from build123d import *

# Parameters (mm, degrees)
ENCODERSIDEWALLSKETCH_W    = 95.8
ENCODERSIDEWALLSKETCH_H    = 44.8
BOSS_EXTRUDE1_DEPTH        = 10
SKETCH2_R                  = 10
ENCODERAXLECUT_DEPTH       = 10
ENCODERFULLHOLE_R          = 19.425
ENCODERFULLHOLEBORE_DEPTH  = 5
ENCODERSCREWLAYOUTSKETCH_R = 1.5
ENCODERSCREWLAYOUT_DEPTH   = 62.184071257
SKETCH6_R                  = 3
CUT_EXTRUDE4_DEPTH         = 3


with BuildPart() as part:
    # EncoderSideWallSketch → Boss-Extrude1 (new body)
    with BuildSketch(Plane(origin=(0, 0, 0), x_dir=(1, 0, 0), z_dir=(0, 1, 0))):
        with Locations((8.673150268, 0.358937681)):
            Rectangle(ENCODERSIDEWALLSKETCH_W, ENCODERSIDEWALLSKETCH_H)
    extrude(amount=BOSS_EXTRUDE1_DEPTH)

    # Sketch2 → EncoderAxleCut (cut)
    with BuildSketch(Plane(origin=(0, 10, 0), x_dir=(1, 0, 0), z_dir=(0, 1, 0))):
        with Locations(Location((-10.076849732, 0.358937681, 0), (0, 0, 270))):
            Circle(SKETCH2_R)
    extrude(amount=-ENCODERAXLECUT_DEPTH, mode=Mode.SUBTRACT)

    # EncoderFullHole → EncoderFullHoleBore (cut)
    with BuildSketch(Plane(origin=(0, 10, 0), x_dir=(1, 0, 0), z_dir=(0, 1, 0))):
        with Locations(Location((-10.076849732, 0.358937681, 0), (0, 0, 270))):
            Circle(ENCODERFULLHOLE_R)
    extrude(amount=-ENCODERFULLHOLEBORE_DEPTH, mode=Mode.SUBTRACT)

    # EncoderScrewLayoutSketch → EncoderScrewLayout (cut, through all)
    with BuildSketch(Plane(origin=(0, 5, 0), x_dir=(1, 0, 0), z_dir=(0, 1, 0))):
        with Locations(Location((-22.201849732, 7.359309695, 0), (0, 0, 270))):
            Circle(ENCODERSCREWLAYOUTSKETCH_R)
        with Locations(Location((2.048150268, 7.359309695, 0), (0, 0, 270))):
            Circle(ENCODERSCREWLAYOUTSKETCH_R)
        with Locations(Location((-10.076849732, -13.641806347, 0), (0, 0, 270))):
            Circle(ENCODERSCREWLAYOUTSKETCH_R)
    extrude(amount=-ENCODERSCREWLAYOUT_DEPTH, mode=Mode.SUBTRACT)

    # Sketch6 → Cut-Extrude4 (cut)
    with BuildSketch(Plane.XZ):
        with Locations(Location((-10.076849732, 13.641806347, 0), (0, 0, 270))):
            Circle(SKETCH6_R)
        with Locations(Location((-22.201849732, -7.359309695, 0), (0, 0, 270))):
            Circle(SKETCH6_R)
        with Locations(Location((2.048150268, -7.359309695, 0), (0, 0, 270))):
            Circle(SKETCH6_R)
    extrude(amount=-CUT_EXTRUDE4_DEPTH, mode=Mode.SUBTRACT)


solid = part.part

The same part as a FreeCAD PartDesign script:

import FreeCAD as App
import Part
import Sketcher
from FreeCAD import Vector
Q = App.Units.Quantity

doc = App.newDocument("Part")
body = doc.addObject("PartDesign::Body", "Body")

# Sketch on XZ plane
sketch1 = body.newObject("Sketcher::SketchObject", "Sketch")
sketch1.AttachmentSupport = (doc.getObject("XZ_Plane"), [""])
sketch1.MapMode = "FlatFace"
sketch1.addGeometry(Part.LineSegment(Vector(-39, -23, 0), Vector(-39, 22, 0)), False)
sketch1.addGeometry(Part.LineSegment(Vector(-39, 22, 0), Vector(57, 22, 0)), False)
sketch1.addGeometry(Part.LineSegment(Vector(57, 22, 0), Vector(57, -23, 0)), False)
sketch1.addGeometry(Part.LineSegment(Vector(57, -23, 0), Vector(-39, -23, 0)), False)
sketch1.addConstraint(Sketcher.Constraint("Coincident", 0, 2, 1, 1))
sketch1.addConstraint(Sketcher.Constraint("Coincident", 1, 2, 2, 1))
sketch1.addConstraint(Sketcher.Constraint("Coincident", 2, 2, 3, 1))
sketch1.addConstraint(Sketcher.Constraint("Coincident", 3, 2, 0, 1))
sketch1.addConstraint(Sketcher.Constraint("Vertical", 0))
sketch1.addConstraint(Sketcher.Constraint("Horizontal", 1))
sketch1.addConstraint(Sketcher.Constraint("Vertical", 2))
sketch1.addConstraint(Sketcher.Constraint("Horizontal", 3))
sketch1.addConstraint(Sketcher.Constraint("DistanceX", 1, 1, 1, 2, Q("95.8 mm")))
sketch1.addConstraint(Sketcher.Constraint("DistanceY", 0, 1, 0, 2, Q("44.8 mm")))
sketch1.addConstraint(Sketcher.Constraint("DistanceX", 0, 2, -1, 1, Q("39.22685 mm")))
sketch1.addConstraint(Sketcher.Constraint("DistanceY", -1, 1, 0, 2, Q("22.041062 mm")))
pad1 = body.newObject("PartDesign::Pad", "Pad")
pad1.Profile = sketch1
pad1.Length = 10
pad1.Reversed = True

# Sketch on XZ plane
sketch2 = body.newObject("Sketcher::SketchObject", "Sketch001")
sketch2.AttachmentSupport = (doc.getObject("XZ_Plane"), [""])
sketch2.MapMode = "FlatFace"
sketch2.AttachmentOffset = App.Placement(Vector(0, 0, -10), App.Rotation())
sketch2.addGeometry(Part.Circle(Vector(-10, 0, 0), Vector(0, 0, 1), 10), False)
sketch2.addConstraint(Sketcher.Constraint("Diameter", 0, Q("20 mm")))
sketch2.addConstraint(Sketcher.Constraint("DistanceX", 0, 3, -1, 1, Q("10.07685 mm")))
sketch2.addConstraint(Sketcher.Constraint("DistanceY", 0, 3, -1, 1, Q("0.358938 mm")))
pocket1 = body.newObject("PartDesign::Pocket", "Pocket")
pocket1.Profile = sketch2
pocket1.Length = 10
pocket1.Reversed = True

# Sketch on XZ plane
sketch3 = body.newObject("Sketcher::SketchObject", "Sketch002")
sketch3.AttachmentSupport = (doc.getObject("XZ_Plane"), [""])
sketch3.MapMode = "FlatFace"
sketch3.AttachmentOffset = App.Placement(Vector(0, 0, -10), App.Rotation())
sketch3.addGeometry(Part.Circle(Vector(-10, 0, 0), Vector(0, 0, 1), 19), False)
sketch3.addConstraint(Sketcher.Constraint("Diameter", 0, Q("38.85 mm")))
sketch3.addConstraint(Sketcher.Constraint("DistanceX", 0, 3, -1, 1, Q("10.07685 mm")))
sketch3.addConstraint(Sketcher.Constraint("DistanceY", 0, 3, -1, 1, Q("0.358938 mm")))
pocket2 = body.newObject("PartDesign::Pocket", "Pocket001")
pocket2.Profile = sketch3
pocket2.Length = 5
pocket2.Reversed = True

# Sketch on XZ plane
sketch4 = body.newObject("Sketcher::SketchObject", "Sketch003")
sketch4.AttachmentSupport = (doc.getObject("XZ_Plane"), [""])
sketch4.MapMode = "FlatFace"
sketch4.AttachmentOffset = App.Placement(Vector(0, 0, -5), App.Rotation())
sketch4.addGeometry(Part.Circle(Vector(-22.2, -7.4, 0), Vector(0, 0, 1), 1.5), False)
sketch4.addGeometry(Part.Circle(Vector(2, -7.4, 0), Vector(0, 0, 1), 1.5), False)
sketch4.addGeometry(Part.Circle(Vector(-10.1, 13.6, 0), Vector(0, 0, 1), 1.5), False)
sketch4.addConstraint(Sketcher.Constraint("Equal", 0, 1))
sketch4.addConstraint(Sketcher.Constraint("Equal", 1, 2))
sketch4.addConstraint(Sketcher.Constraint("Horizontal", 0, 3, 1, 3))
sketch4.addConstraint(Sketcher.Constraint("Diameter", 0, Q("3 mm")))
sketch4.addConstraint(Sketcher.Constraint("DistanceX", 0, 3, 1, 3, Q("24.25 mm")))
sketch4.addConstraint(Sketcher.Constraint("DistanceX", 0, 3, 2, 3, Q("12.125 mm")))
sketch4.addConstraint(Sketcher.Constraint("DistanceX", 0, 3, -1, 1, Q("22.20185 mm")))
sketch4.addConstraint(Sketcher.Constraint("DistanceY", 0, 3, -1, 1, Q("7.35931 mm")))
sketch4.addConstraint(Sketcher.Constraint("DistanceY", -1, 1, 2, 3, Q("13.641806 mm")))
pocket3 = body.newObject("PartDesign::Pocket", "Pocket002")
pocket3.Profile = sketch4
pocket3.Type = "ThroughAll"
pocket3.Reversed = True

# Sketch on XZ plane
sketch5 = body.newObject("Sketcher::SketchObject", "Sketch004")
sketch5.AttachmentSupport = (doc.getObject("XZ_Plane"), [""])
sketch5.MapMode = "FlatFace"
sketch5.addGeometry(Part.Circle(Vector(-10.1, 13.6, 0), Vector(0, 0, 1), 3), False)
sketch5.addGeometry(Part.Circle(Vector(-22.2, -7.4, 0), Vector(0, 0, 1), 3), False)
sketch5.addGeometry(Part.Circle(Vector(2, -7.4, 0), Vector(0, 0, 1), 3), False)
sketch5.addConstraint(Sketcher.Constraint("Equal", 0, 1))
sketch5.addConstraint(Sketcher.Constraint("Equal", 1, 2))
sketch5.addConstraint(Sketcher.Constraint("Horizontal", 1, 3, 2, 3))
sketch5.addConstraint(Sketcher.Constraint("Diameter", 0, Q("6 mm")))
sketch5.addConstraint(Sketcher.Constraint("DistanceX", 1, 3, 2, 3, Q("24.25 mm")))
sketch5.addConstraint(Sketcher.Constraint("DistanceX", 1, 3, 0, 3, Q("12.125 mm")))
sketch5.addConstraint(Sketcher.Constraint("DistanceX", 0, 3, -1, 1, Q("10.07685 mm")))
sketch5.addConstraint(Sketcher.Constraint("DistanceY", 1, 3, -1, 1, Q("7.35931 mm")))
sketch5.addConstraint(Sketcher.Constraint("DistanceY", -1, 1, 0, 3, Q("13.641806 mm")))
pocket4 = body.newObject("PartDesign::Pocket", "Pocket003")
pocket4.Profile = sketch5
pocket4.Length = 3

doc.recompute()
